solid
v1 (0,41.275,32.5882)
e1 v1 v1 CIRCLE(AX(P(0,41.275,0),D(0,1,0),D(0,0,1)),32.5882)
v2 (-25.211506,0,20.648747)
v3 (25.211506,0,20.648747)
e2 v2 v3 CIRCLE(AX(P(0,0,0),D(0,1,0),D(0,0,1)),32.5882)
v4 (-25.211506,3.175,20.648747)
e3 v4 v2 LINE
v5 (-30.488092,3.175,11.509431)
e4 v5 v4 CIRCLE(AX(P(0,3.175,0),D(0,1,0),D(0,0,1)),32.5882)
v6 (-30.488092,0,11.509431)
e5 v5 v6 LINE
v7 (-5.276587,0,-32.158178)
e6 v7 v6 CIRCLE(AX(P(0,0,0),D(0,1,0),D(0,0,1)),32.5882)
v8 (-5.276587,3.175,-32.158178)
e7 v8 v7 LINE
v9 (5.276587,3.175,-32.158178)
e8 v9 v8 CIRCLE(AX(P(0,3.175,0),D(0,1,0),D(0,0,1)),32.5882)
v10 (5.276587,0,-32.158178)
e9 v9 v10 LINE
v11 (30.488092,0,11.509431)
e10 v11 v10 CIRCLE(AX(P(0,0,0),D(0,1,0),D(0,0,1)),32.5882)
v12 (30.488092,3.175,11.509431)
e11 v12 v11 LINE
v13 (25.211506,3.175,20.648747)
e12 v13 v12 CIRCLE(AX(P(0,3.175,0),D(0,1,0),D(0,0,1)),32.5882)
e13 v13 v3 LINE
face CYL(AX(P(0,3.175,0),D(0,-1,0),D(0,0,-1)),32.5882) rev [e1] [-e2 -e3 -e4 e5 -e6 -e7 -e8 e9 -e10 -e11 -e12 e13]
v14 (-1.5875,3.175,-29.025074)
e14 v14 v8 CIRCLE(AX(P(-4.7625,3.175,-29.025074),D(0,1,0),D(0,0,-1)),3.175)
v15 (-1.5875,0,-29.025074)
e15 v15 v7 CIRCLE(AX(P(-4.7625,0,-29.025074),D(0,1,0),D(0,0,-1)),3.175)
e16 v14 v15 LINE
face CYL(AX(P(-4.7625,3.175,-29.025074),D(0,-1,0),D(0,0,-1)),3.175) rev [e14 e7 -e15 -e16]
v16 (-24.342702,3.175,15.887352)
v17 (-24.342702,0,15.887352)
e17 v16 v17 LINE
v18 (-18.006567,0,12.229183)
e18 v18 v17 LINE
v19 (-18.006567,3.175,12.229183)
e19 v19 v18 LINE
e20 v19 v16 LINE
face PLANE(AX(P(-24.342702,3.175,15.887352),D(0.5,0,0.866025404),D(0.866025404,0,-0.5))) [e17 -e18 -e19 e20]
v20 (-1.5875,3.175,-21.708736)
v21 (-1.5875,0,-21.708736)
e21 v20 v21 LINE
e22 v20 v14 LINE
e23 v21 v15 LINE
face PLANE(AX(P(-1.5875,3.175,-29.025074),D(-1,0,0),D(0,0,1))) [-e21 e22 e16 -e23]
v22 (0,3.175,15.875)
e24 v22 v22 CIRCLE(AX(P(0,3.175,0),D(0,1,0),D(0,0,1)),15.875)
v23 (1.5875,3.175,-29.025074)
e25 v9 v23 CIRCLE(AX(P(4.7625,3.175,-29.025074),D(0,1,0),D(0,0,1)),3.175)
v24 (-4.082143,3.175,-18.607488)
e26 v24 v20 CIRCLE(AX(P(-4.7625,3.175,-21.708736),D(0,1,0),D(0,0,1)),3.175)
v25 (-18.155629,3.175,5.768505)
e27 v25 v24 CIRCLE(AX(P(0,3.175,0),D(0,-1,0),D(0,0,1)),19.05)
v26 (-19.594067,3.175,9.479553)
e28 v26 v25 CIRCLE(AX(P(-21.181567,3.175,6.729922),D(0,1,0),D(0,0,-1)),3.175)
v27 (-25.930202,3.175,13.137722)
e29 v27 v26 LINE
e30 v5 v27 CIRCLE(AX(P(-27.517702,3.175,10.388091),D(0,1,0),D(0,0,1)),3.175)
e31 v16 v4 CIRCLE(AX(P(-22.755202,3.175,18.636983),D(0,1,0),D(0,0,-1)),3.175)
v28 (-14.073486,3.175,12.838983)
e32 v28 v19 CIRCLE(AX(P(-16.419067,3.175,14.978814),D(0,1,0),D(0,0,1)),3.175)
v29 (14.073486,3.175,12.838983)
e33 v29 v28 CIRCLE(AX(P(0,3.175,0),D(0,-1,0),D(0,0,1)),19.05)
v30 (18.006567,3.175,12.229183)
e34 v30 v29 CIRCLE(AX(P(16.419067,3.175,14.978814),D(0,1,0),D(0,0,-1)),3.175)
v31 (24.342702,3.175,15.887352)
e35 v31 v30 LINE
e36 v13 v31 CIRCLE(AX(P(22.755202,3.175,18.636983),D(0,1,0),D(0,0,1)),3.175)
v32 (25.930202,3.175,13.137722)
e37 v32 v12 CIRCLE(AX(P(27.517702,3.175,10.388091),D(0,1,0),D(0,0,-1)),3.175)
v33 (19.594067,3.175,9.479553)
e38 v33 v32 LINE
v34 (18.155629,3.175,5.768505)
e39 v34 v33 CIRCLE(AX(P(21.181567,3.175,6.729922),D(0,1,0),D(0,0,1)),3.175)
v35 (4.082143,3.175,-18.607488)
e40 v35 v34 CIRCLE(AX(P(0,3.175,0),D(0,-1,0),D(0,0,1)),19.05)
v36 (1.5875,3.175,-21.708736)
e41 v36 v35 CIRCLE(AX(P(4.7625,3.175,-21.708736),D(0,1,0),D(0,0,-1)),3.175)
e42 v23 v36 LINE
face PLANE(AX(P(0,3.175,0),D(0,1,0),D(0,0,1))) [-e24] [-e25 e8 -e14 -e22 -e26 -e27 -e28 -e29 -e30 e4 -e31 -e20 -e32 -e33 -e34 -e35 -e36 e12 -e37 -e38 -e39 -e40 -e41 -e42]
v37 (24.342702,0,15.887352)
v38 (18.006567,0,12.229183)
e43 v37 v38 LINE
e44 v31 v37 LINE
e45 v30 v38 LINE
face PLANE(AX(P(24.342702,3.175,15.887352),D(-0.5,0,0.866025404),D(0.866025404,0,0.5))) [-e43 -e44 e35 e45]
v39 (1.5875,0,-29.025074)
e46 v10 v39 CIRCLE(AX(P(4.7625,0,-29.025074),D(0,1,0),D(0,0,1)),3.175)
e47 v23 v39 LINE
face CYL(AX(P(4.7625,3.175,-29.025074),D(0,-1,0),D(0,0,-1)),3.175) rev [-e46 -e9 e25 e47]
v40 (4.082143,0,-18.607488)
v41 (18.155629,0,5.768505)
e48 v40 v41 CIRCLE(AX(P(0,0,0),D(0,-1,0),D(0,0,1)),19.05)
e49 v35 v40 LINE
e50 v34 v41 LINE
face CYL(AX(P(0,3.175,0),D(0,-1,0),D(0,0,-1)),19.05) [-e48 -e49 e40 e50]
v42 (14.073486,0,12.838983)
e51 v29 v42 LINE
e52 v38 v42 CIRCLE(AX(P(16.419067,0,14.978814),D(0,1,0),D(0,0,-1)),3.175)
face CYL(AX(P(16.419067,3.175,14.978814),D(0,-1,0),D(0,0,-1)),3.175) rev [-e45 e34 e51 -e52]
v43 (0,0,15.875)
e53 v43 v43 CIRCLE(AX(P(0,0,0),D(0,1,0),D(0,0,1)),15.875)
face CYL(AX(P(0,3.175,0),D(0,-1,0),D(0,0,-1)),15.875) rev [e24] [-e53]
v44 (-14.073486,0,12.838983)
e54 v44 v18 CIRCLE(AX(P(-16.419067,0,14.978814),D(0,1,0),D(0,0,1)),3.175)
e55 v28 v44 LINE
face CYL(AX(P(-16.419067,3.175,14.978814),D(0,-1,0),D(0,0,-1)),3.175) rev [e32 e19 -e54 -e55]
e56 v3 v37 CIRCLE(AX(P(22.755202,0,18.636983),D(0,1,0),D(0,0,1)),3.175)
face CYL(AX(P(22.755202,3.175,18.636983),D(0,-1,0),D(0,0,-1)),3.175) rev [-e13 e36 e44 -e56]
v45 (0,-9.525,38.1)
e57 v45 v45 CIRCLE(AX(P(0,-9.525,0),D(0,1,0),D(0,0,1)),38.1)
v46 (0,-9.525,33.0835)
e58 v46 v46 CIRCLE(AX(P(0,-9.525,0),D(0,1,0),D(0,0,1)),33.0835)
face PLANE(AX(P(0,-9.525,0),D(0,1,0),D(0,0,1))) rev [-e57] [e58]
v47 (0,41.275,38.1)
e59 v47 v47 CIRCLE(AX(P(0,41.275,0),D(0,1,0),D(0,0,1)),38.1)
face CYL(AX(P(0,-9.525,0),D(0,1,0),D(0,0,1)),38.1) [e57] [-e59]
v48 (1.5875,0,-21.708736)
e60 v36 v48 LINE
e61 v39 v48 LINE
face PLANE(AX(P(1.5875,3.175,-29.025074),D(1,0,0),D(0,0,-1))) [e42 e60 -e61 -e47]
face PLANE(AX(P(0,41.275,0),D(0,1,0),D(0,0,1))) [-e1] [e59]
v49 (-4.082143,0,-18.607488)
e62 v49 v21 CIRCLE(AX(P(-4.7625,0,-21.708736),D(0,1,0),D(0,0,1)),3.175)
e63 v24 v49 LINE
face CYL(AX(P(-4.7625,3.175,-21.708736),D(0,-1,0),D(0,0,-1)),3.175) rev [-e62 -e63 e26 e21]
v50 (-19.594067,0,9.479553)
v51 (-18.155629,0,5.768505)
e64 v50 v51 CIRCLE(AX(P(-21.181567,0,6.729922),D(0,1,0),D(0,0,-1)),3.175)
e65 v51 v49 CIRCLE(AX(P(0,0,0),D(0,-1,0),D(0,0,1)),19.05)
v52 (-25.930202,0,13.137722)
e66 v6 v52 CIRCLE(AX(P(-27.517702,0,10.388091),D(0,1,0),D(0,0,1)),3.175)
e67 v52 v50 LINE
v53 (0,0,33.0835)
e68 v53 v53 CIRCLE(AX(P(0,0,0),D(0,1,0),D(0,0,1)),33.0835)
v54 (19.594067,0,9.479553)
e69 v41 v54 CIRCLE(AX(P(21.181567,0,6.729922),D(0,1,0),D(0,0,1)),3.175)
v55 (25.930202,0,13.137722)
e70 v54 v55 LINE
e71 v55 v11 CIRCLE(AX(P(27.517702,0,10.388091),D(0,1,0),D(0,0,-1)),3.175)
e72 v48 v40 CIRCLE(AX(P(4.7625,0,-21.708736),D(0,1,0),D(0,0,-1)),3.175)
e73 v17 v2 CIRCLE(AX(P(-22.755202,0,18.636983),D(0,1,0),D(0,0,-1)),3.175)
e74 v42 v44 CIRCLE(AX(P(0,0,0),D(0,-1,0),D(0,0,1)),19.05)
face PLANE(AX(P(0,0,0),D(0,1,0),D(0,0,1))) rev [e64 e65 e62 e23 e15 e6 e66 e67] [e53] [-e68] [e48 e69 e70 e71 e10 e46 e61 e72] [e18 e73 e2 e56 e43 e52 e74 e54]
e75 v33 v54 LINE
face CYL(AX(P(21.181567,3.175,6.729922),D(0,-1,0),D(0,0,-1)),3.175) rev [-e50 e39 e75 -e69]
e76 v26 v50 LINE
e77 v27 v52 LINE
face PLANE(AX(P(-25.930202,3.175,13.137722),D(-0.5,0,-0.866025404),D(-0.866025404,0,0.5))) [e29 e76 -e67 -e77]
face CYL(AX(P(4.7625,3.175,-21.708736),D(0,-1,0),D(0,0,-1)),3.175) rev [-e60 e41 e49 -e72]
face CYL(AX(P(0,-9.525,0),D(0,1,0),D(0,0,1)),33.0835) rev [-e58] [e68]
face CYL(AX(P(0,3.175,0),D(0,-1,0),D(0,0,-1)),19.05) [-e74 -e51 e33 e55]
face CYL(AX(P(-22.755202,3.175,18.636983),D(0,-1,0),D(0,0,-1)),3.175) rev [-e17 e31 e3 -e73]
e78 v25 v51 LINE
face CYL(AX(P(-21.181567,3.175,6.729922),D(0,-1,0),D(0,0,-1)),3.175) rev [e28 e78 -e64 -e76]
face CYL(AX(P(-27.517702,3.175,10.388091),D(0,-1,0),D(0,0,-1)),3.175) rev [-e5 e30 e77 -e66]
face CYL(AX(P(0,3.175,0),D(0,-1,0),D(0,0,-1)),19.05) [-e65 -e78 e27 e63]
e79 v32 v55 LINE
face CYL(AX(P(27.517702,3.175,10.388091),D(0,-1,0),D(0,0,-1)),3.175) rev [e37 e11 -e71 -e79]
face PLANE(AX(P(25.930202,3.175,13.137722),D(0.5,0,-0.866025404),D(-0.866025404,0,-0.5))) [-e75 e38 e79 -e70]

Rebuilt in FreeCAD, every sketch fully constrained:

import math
import FreeCAD as App
import Part
import Sketcher

V = App.Vector
Q = App.Units.Quantity

doc = App.newDocument("Part")
body = doc.addObject("PartDesign::Body", "Body")

sketch1 = body.newObject("Sketcher::SketchObject", "Sketch")
sketch1.AttachmentSupport = (doc.getObject("XZ_Plane"), [""])
sketch1.MapMode = "FlatFace"
sketch1.addGeometry([
    Part.Circle(V(0, 0, 0), V(0, 0, 1), 38),
    Part.Circle(V(0, 0, 0), V(0, 0, 1), 33),
], False)
sketch1.addConstraint([
    Sketcher.Constraint("Coincident", 0, 3, -1, 1),
    Sketcher.Constraint("Coincident", 1, 3, -1, 1),
    Sketcher.Constraint("Diameter", 0, Q("3 in")),
    Sketcher.Constraint("Diameter", 1, Q("2.605 in")),
])
pad1 = body.newObject("PartDesign::Pad", "Pad")
pad1.Profile = sketch1
pad1.Length = Q("0.375 in")

sketch2 = body.newObject("Sketcher::SketchObject", "Sketch001")
sketch2.AttachmentSupport = (doc.getObject("XZ_Plane"), [""])
sketch2.MapMode = "FlatFace"
sketch2.addGeometry([
    Part.Circle(V(0, 0, 0), V(0, 0, 1), 38.1),
    Part.LineSegment(V(18, 12.2, 0), V(24.3, 15.9, 0)),
    Part.ArcOfCircle(Part.Circle(V(22.8, 18.6, 0), V(0, 0, 1), 3.2), math.radians(-60), math.radians(39)),
    Part.ArcOfCircle(Part.Circle(V(0, 0, 0), V(0, 0, 1), 32.6), math.radians(39), math.radians(141)),
    Part.ArcOfCircle(Part.Circle(V(-22.8, 18.6, 0), V(0, 0, 1), 3.2), math.radians(141), math.radians(240)),
    Part.LineSegment(V(-24.3, 15.9, 0), V(-18, 12.2, 0)),
    Part.ArcOfCircle(Part.Circle(V(-16.4, 15, 0), V(0, 0, 1), 3.2), math.radians(-120), math.radians(-42)),
    Part.ArcOfCircle(Part.Circle(V(0, 0, 0), V(0, 0, 1), 19.1), math.radians(42), math.radians(138)),
    Part.ArcOfCircle(Part.Circle(V(16.4, 15, 0), V(0, 0, 1), 3.2), math.radians(-138), math.radians(-60)),
    Part.ArcOfCircle(Part.Circle(V(-4.8, -29, 0), V(0, 0, 1), 3.2), math.radians(-99), math.radians(0)),
    Part.LineSegment(V(-1.6, -29, 0), V(-1.6, -21.7, 0)),
    Part.ArcOfCircle(Part.Circle(V(-4.8, -21.7, 0), V(0, 0, 1), 3.2), math.radians(0), math.radians(78)),
    Part.ArcOfCircle(Part.Circle(V(0, 0, 0), V(0, 0, 1), 19.1), math.radians(162), math.radians(258)),
    Part.ArcOfCircle(Part.Circle(V(-21.2, 6.7, 0), V(0, 0, 1), 3.2), math.radians(-18), math.radians(60)),
    Part.LineSegment(V(-19.6, 9.5, 0), V(-25.9, 13.1, 0)),
    Part.ArcOfCircle(Part.Circle(V(-27.5, 10.4, 0), V(0, 0, 1), 3.2), math.radians(60), math.radians(159)),
    Part.ArcOfCircle(Part.Circle(V(0, 0, 0), V(0, 0, 1), 32.6), math.radians(159), math.radians(261)),
    Part.Circle(V(0, 0, 0), V(0, 0, 1), 15.9),
    Part.LineSegment(V(1.6, -21.7, 0), V(1.6, -29, 0)),
    Part.ArcOfCircle(Part.Circle(V(4.8, -29, 0), V(0, 0, 1), 3.2), math.radians(180), math.radians(279)),
    Part.ArcOfCircle(Part.Circle(V(0, 0, 0), V(0, 0, 1), 32.6), math.radians(-81), math.radians(21)),
    Part.ArcOfCircle(Part.Circle(V(27.5, 10.4, 0), V(0, 0, 1), 3.2), math.radians(21), math.radians(120)),
    Part.LineSegment(V(25.9, 13.1, 0), V(19.6, 9.5, 0)),
    Part.ArcOfCircle(Part.Circle(V(21.2, 6.7, 0), V(0, 0, 1), 3.2), math.radians(120), math.radians(198)),
    Part.ArcOfCircle(Part.Circle(V(0, 0, 0), V(0, 0, 1), 19.1), math.radians(-78), math.radians(18)),
    Part.ArcOfCircle(Part.Circle(V(4.8, -21.7, 0), V(0, 0, 1), 3.2), math.radians(102), math.radians(180)),
], False)
sketch2.addConstraint([
    Sketcher.Constraint("Tangent", 1, 2, 2, 1),
    Sketcher.Constraint("Tangent", 2, 2, 3, 1),
    Sketcher.Constraint("Tangent", 3, 2, 4, 1),
    Sketcher.Constraint("Tangent", 4, 2, 5, 1),
    Sketcher.Constraint("Tangent", 5, 2, 6, 1),
    Sketcher.Constraint("Tangent", 6, 2, 7, 2),
    Sketcher.Constraint("Tangent", 7, 1, 8, 1),
    Sketcher.Constraint("Tangent", 8, 2, 1, 1),
    Sketcher.Constraint("Tangent", 9, 2, 10, 1),
    Sketcher.Constraint("Tangent", 10, 2, 11, 1),
    Sketcher.Constraint("Tangent", 11, 2, 12, 2),
    Sketcher.Constraint("Tangent", 12, 1, 13, 1),
    Sketcher.Constraint("Tangent", 13, 2, 14, 1),
    Sketcher.Constraint("Tangent", 14, 2, 15, 1),
    Sketcher.Constraint("Tangent", 15, 2, 16, 1),
    Sketcher.Constraint("Tangent", 16, 2, 9, 1),
    Sketcher.Constraint("Tangent", 18, 2, 19, 1),
    Sketcher.Constraint("Tangent", 19, 2, 20, 1),
    Sketcher.Constraint("Tangent", 20, 2, 21, 1),
    Sketcher.Constraint("Tangent", 21, 2, 22, 1),
    Sketcher.Constraint("Tangent", 22, 2, 23, 1),
    Sketcher.Constraint("Tangent", 23, 2, 24, 2),
    Sketcher.Constraint("Tangent", 24, 1, 25, 1),
    Sketcher.Constraint("Tangent", 25, 2, 18, 1),
    Sketcher.Constraint("Vertical", 10),
    Sketcher.Constraint("Vertical", 18),
    Sketcher.Constraint("Coincident", 0, 3, -1, 1),
    Sketcher.Constraint("Coincident", 3, 3, -1, 1),
    Sketcher.Constraint("Coincident", 7, 3, -1, 1),
    Sketcher.Constraint("Coincident", 12, 3, -1, 1),
    Sketcher.Constraint("Coincident", 16, 3, -1, 1),
    Sketcher.Constraint("Coincident", 17, 3, -1, 1),
    Sketcher.Constraint("Coincident", 20, 3, -1, 1),
    Sketcher.Constraint("Coincident", 24, 3, -1, 1),
    Sketcher.Constraint("Equal", 2, 4),
    Sketcher.Constraint("Equal", 4, 6),
    Sketcher.Constraint("Equal", 6, 8),
    Sketcher.Constraint("Equal", 8, 9),
    Sketcher.Constraint("Equal", 9, 11),
    Sketcher.Constraint("Equal", 7, 12),
    Sketcher.Constraint("Equal", 11, 13),
    Sketcher.Constraint("Equal", 13, 15),
    Sketcher.Constraint("Equal", 3, 16),
    Sketcher.Constraint("Equal", 15, 19),
    Sketcher.Constraint("Equal", 16, 20),
    Sketcher.Constraint("Equal", 19, 21),
    Sketcher.Constraint("Equal", 21, 23),
    Sketcher.Constraint("Equal", 12, 24),
    Sketcher.Constraint("Equal", 23, 25),
    Sketcher.Constraint("Symmetric", 1, 2, 4, 2, -2),
    Sketcher.Constraint("Symmetric", 14, 2, 21, 2, -2),
    Sketcher.Constraint("Parallel", 5, 14),
    Sketcher.Constraint("Horizontal", 9, 3, 19, 3),
    Sketcher.Constraint("Equal", 5, 14),
    Sketcher.Constraint("Diameter", 0, Q("3 in")),
    Sketcher.Constraint("Diameter", 17, Q("1.25 in")),
    Sketcher.Constraint("Radius", 7, Q("0.75 in")),
    Sketcher.Constraint("Angle", 1, Q("30 deg")),
    Sketcher.Constraint("Radius", 2, Q("0.125 in")),
    Sketcher.Constraint("Radius", 3, Q("1.283 in")),
    Sketcher.Constraint("DistanceX", 9, 2, 19, 3, Q("0.25 in")),
    Sketcher.Constraint("DistanceX", 13, 3, 6, 3, Q("0.1875 in")),
])
pad2 = body.newObject("PartDesign::Pad", "Pad001")
pad2.Profile = sketch2
pad2.Length = Q("0.125 in")
pad2.Reversed = True

sketch3 = body.newObject("Sketcher::SketchObject", "Sketch002")
sketch3.AttachmentSupport = (doc.getObject("XZ_Plane"), [""])
sketch3.MapMode = "FlatFace"
sketch3.AttachmentOffset = App.Placement(V(0, 0, -0.125 * 25.4), App.Rotation())
sketch3.addGeometry([
    Part.Circle(V(0, 0, 0), V(0, 0, 1), 38),
    Part.Circle(V(0, 0, 0), V(0, 0, 1), 33),
], False)
sketch3.addConstraint([
    Sketcher.Constraint("Coincident", 0, 3, -1, 1),
    Sketcher.Constraint("Coincident", 1, 3, -1, 1),
    Sketcher.Constraint("Diameter", 0, Q("3 in")),
    Sketcher.Constraint("Diameter", 1, Q("2.566 in")),
])
pad3 = body.newObject("PartDesign::Pad", "Pad002")
pad3.Profile = sketch3
pad3.Length = Q("1.5 in")
pad3.Reversed = True

doc.recompute()
